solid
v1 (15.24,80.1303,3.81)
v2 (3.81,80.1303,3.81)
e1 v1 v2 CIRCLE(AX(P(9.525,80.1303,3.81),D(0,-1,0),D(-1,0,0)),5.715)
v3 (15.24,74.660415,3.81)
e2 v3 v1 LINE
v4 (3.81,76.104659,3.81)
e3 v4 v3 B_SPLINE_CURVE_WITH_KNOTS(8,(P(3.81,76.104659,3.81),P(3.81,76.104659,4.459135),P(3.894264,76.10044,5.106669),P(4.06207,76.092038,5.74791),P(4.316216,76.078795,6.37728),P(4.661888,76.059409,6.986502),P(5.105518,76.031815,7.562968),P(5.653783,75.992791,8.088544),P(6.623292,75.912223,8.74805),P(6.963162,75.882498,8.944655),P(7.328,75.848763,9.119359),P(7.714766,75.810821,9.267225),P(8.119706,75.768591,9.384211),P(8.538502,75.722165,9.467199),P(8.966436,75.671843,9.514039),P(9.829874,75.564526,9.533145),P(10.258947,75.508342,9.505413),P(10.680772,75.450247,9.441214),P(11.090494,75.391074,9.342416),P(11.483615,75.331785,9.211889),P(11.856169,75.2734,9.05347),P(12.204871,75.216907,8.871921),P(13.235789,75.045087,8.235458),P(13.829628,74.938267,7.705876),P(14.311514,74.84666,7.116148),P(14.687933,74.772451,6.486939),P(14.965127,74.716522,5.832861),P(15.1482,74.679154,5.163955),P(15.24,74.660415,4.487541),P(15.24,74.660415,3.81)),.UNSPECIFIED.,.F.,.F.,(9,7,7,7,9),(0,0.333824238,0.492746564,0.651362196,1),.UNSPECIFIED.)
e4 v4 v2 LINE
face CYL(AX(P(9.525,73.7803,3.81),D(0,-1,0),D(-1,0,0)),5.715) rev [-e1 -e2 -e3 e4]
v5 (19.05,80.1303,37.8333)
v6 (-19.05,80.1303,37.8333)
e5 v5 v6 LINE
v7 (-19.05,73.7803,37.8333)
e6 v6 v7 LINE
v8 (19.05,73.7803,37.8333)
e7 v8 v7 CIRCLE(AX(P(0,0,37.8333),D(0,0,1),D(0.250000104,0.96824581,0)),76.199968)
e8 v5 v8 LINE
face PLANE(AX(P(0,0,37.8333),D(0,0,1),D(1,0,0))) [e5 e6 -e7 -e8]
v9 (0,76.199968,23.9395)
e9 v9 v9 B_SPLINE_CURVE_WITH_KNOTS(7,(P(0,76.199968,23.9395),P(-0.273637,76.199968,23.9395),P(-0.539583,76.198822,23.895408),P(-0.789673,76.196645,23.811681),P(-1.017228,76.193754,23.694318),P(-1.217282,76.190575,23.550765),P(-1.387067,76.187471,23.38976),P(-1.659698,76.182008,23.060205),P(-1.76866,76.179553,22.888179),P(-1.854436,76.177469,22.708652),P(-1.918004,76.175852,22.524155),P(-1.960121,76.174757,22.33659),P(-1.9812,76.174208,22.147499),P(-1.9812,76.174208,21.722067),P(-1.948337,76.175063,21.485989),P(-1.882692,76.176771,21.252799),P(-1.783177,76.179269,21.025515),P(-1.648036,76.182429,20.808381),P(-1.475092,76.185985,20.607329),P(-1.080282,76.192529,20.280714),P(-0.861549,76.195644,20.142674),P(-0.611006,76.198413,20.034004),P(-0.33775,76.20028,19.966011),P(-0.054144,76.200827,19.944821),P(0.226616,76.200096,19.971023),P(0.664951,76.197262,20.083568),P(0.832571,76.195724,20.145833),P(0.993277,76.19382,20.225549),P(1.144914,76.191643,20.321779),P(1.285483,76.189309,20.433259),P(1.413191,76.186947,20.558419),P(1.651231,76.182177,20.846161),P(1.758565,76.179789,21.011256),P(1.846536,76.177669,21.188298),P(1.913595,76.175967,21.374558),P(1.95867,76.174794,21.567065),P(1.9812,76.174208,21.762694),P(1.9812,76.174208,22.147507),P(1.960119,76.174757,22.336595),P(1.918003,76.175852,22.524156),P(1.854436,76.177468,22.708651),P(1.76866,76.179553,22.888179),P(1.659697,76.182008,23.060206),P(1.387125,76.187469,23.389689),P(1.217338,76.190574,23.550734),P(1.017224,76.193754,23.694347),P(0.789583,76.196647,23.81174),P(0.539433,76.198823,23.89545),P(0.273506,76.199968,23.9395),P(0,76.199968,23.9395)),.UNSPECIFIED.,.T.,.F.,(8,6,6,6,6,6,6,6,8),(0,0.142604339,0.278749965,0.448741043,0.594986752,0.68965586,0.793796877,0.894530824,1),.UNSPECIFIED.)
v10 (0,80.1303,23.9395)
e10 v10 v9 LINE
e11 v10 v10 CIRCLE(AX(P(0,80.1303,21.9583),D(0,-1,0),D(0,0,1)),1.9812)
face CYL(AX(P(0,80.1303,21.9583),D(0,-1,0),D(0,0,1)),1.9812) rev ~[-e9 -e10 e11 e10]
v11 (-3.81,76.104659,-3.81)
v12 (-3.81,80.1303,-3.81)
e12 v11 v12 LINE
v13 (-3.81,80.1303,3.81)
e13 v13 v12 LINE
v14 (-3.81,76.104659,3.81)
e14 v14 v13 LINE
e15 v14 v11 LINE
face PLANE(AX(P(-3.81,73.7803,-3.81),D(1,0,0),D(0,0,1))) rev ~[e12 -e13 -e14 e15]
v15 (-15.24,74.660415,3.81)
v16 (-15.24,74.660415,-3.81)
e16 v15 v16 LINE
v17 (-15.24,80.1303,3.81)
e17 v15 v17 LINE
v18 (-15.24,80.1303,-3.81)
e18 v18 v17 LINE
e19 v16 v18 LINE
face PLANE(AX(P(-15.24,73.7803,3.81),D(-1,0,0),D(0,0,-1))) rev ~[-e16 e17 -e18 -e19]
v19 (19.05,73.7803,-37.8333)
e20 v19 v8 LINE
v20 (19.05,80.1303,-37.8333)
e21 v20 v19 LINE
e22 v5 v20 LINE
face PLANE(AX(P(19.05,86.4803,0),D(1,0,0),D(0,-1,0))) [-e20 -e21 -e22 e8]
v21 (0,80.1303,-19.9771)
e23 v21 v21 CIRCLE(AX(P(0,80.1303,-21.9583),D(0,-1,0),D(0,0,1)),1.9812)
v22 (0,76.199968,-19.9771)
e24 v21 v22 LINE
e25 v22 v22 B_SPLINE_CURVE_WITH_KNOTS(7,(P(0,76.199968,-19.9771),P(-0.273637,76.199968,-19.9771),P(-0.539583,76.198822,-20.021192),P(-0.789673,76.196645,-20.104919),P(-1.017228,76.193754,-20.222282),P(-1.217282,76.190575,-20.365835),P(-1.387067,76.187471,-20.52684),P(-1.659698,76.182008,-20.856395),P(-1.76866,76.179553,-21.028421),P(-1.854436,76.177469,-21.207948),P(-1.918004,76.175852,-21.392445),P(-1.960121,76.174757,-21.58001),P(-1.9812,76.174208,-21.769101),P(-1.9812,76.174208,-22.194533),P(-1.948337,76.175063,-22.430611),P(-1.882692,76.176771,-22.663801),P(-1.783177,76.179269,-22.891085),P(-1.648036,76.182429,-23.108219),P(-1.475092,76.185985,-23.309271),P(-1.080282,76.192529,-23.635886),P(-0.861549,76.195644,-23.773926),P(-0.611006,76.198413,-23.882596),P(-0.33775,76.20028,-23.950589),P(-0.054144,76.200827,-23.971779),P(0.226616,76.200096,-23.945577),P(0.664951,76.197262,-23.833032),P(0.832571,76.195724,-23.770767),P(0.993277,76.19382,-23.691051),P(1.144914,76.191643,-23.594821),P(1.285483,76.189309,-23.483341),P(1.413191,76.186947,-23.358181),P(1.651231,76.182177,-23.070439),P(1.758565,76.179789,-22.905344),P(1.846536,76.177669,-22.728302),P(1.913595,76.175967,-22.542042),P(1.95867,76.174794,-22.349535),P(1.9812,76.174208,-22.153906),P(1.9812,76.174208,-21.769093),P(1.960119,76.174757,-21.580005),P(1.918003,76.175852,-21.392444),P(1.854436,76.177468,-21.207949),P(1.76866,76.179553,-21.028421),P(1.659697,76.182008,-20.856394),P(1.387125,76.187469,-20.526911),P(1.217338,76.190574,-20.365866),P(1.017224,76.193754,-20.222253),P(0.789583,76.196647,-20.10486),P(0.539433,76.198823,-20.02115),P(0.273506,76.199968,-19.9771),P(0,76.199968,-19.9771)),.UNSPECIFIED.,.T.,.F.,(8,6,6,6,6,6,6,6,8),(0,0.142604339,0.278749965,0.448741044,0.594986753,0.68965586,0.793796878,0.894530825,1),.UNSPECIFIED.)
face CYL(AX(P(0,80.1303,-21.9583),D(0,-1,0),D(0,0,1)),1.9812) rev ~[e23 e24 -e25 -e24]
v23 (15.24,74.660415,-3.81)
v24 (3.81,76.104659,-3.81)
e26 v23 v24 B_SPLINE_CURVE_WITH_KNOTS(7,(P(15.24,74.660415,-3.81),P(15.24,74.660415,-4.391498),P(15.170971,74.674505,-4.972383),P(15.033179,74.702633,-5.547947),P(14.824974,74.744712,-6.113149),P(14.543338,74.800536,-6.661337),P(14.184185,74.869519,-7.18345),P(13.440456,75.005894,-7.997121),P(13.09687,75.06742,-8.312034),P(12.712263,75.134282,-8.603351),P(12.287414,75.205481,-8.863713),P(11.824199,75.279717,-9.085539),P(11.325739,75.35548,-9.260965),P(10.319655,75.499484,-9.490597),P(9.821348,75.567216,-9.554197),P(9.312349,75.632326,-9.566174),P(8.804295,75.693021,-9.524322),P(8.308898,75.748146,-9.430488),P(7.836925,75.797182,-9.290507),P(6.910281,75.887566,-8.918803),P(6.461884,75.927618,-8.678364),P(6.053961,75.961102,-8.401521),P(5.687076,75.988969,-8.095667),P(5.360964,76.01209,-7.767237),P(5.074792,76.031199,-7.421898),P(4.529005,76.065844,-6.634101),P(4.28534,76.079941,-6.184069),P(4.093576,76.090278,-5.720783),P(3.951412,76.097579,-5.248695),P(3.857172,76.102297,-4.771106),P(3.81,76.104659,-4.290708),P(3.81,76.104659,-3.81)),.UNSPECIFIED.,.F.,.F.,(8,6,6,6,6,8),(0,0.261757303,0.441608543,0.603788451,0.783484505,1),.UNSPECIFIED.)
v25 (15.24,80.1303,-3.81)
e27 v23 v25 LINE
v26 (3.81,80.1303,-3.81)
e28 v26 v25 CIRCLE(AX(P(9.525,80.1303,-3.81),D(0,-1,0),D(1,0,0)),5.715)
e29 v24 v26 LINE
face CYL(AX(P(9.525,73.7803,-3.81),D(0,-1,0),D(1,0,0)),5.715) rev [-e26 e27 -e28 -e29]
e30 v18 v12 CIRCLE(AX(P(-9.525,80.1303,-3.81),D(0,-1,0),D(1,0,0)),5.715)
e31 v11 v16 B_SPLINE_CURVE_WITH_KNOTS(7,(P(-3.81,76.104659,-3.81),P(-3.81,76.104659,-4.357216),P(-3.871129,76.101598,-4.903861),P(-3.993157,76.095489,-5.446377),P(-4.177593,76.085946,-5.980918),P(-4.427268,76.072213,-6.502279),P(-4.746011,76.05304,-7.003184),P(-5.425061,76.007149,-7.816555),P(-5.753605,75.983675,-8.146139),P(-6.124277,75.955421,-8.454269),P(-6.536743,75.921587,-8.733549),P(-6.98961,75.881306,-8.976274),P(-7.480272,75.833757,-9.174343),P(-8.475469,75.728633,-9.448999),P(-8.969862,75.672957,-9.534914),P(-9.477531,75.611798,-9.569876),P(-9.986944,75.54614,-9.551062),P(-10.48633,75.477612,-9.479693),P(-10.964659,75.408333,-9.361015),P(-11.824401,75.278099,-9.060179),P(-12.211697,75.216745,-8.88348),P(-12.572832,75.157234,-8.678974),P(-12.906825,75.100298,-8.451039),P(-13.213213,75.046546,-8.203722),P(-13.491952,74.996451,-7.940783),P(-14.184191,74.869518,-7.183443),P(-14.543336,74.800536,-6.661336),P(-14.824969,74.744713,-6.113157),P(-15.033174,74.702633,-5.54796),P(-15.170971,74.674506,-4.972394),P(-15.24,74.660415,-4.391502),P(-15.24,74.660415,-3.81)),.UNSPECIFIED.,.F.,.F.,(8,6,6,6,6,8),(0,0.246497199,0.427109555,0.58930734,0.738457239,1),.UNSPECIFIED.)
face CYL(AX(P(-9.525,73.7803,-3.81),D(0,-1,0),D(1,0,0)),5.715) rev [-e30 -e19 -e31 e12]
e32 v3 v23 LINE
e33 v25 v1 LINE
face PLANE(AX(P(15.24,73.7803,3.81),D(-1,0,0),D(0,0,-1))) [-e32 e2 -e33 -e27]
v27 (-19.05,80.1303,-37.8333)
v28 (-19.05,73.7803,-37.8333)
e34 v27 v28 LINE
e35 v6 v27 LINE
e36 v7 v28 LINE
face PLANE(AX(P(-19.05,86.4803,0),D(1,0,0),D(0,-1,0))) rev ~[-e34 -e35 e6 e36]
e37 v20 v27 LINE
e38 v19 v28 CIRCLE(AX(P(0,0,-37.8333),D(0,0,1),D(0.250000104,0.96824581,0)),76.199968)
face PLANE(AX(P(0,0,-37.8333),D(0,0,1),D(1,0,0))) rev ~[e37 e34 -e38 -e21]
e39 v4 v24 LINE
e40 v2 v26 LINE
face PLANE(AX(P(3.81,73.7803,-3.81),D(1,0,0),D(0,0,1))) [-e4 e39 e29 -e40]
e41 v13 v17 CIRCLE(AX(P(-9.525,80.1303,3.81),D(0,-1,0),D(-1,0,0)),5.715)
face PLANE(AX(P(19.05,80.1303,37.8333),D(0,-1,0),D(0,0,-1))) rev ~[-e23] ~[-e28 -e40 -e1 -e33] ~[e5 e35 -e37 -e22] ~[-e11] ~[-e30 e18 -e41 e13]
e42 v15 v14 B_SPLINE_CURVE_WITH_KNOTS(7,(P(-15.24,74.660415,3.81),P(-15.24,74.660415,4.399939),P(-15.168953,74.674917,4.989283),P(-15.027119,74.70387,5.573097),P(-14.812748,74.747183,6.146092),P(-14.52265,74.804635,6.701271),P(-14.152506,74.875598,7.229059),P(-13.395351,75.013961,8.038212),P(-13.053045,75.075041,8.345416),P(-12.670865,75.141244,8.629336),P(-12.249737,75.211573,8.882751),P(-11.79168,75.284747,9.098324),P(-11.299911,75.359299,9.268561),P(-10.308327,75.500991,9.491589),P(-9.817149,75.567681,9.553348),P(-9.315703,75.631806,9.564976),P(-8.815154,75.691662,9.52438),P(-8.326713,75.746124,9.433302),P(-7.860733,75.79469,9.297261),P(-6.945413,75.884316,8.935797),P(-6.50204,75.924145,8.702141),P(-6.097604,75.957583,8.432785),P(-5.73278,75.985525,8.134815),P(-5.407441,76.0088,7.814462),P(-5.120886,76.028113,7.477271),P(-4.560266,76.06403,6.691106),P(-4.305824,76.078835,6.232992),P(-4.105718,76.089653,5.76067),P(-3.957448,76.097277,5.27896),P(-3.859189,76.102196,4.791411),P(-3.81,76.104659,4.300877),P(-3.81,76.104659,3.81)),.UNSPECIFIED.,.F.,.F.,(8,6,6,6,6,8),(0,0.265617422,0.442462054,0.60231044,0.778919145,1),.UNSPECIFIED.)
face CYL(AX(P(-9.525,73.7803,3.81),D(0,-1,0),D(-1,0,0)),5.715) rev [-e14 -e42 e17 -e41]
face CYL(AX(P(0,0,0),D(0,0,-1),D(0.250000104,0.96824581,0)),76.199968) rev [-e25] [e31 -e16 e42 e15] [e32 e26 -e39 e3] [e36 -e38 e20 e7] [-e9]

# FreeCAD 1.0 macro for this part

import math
import FreeCAD as App
import Part
import Sketcher
Q = App.Units.Quantity


def add_polygon(sketch, points):
    """Adds a closed chain of lines whose ends are joined by coincident constraints."""
    first, n = sketch.GeometryCount, len(points)
    for a, b in zip(points, points[1:] + points[:1]):
        sketch.addGeometry(Part.LineSegment(App.Vector(*a, 0), App.Vector(*b, 0)), False)
    for i in range(n):
        sketch.addConstraint(Sketcher.Constraint("Coincident", first + i, 2, first + (i + 1) % n, 1))

doc = App.newDocument("Part")
body = doc.addObject("PartDesign::Body", "Body")

# Sketch on XY plane
sketch1 = doc.addObject("Sketcher::SketchObject", "Sketch")
body.addObject(sketch1)
sketch1.AttachmentSupport = (doc.XY_Plane, [""])
sketch1.MapMode = "FlatFace"
sketch1.addGeometry(Part.ArcOfCircle(Part.Circle(App.Vector(0, 0, 0), App.Vector(0, 0, 1), 76), math.radians(76), math.radians(104)), False)
sketch1.addGeometry(Part.LineSegment(App.Vector(19, 74, 0), App.Vector(19, 86, 0)), False)
sketch1.addGeometry(Part.LineSegment(App.Vector(19, 86, 0), App.Vector(-19, 86, 0)), False)
sketch1.addGeometry(Part.LineSegment(App.Vector(-19, 86, 0), App.Vector(-19, 74, 0)), False)
sketch1.addConstraint(Sketcher.Constraint("Coincident", 0, 1, 1, 1))
sketch1.addConstraint(Sketcher.Constraint("Coincident", 1, 2, 2, 1))
sketch1.addConstraint(Sketcher.Constraint("Coincident", 2, 2, 3, 1))
sketch1.addConstraint(Sketcher.Constraint("Coincident", 3, 2, 0, 2))
sketch1.addConstraint(Sketcher.Constraint("Vertical", 1))
sketch1.addConstraint(Sketcher.Constraint("Horizontal", 2))
sketch1.addConstraint(Sketcher.Constraint("Vertical", 3))
sketch1.addConstraint(Sketcher.Constraint("Coincident", 0, 3, -1, 1))
sketch1.addConstraint(Sketcher.Constraint("Horizontal", 0, 1, 3, 2))
sketch1.addConstraint(Sketcher.Constraint("Radius", 0, Q("3 in")))
sketch1.addConstraint(Sketcher.Constraint("DistanceY", 1, 1, 1, 2, Q("0.5 in")))
sketch1.addConstraint(Sketcher.Constraint("DistanceX", -1, 1, 0, 1, Q("0.75 in")))
pad1 = doc.addObject("PartDesign::Pad", "Pad")
body.addObject(pad1)
pad1.Profile = sketch1
pad1.Length = Q("2.979 in")
pad1.Midplane = True

# Sketch on XZ plane
sketch2 = doc.addObject("Sketcher::SketchObject", "Sketch001")
body.addObject(sketch2)
sketch2.AttachmentSupport = (doc.XZ_Plane, [""])
sketch2.MapMode = "FlatFace"
sketch2.AttachmentOffset = App.Placement(App.Vector(0, 0, -86.4803), App.Rotation())
sketch2.addGeometry(Part.LineSegment(App.Vector(7.3, -5.4, 0), App.Vector(7.3, 5.4, 0)), False)
sketch2.addGeometry(Part.ArcOfCircle(Part.Circle(App.Vector(9.5, 5.4, 0), App.Vector(0, 0, 1), 2.2), math.radians(0), math.radians(180)), False)
sketch2.addGeometry(Part.LineSegment(App.Vector(11.7, 5.4, 0), App.Vector(11.7, -5.4, 0)), False)
sketch2.addGeometry(Part.ArcOfCircle(Part.Circle(App.Vector(9.5, -5.4, 0), App.Vector(0, 0, 1), 2.2), math.radians(180), math.radians(360)), False)
sketch2.addGeometry(Part.ArcOfCircle(Part.Circle(App.Vector(-9.5, 5.4, 0), App.Vector(0, 0, 1), 2.2), math.radians(0), math.radians(180)), False)
sketch2.addGeometry(Part.LineSegment(App.Vector(-7.3, 5.4, 0), App.Vector(-7.3, -5.4, 0)), False)
sketch2.addGeometry(Part.ArcOfCircle(Part.Circle(App.Vector(-9.5, -5.4, 0), App.Vector(0, 0, 1), 2.2), math.radians(180), math.radians(360)), False)
sketch2.addGeometry(Part.LineSegment(App.Vector(-11.7, -5.4, 0), App.Vector(-11.7, 5.4, 0)), False)
sketch2.addConstraint(Sketcher.Constraint("Tangent", 0, 2, 1, 2))
sketch2.addConstraint(Sketcher.Constraint("Tangent", 1, 1, 2, 1))
sketch2.addConstraint(Sketcher.Constraint("Tangent", 2, 2, 3, 2))
sketch2.addConstraint(Sketcher.Constraint("Tangent", 3, 1, 0, 1))
sketch2.addConstraint(Sketcher.Constraint("Tangent", 4, 1, 5, 1))
sketch2.addConstraint(Sketcher.Constraint("Tangent", 5, 2, 6, 2))
sketch2.addConstraint(Sketcher.Constraint("Tangent", 6, 1, 7, 1))
sketch2.addConstraint(Sketcher.Constraint("Tangent", 7, 2, 4, 2))
sketch2.addConstraint(Sketcher.Constraint("Vertical", 0))
sketch2.addConstraint(Sketcher.Constraint("Vertical", 2))
sketch2.addConstraint(Sketcher.Constraint("Vertical", 5))
sketch2.addConstraint(Sketcher.Constraint("Vertical", 7))
sketch2.addConstraint(Sketcher.Constraint("Equal", 3, 4))
sketch2.addConstraint(Sketcher.Constraint("Symmetric", 3, 3, 4, 3, -1, 1))
sketch2.addConstraint(Sketcher.Constraint("Horizontal", 1, 3, 4, 3))
sketch2.addConstraint(Sketcher.Constraint("Horizontal", 3, 3, 6, 3))
sketch2.addConstraint(Sketcher.Constraint("Radius", 1, Q("0.0875 in")))
sketch2.addConstraint(Sketcher.Constraint("DistanceX", 4, 3, 1, 3, Q("0.75 in")))
sketch2.addConstraint(Sketcher.Constraint("DistanceY", 0, 1, 0, 2, Q("0.425 in")))
pocket1 = doc.addObject("PartDesign::Pocket", "Pocket")
body.addObject(pocket1)
pocket1.Profile = sketch2
pocket1.Type = "ThroughAll"
pocket1.Reversed = True

# Sketch on XZ plane
sketch3 = doc.addObject("Sketcher::SketchObject", "Sketch002")
body.addObject(sketch3)
sketch3.AttachmentSupport = (doc.XZ_Plane, [""])
sketch3.MapMode = "FlatFace"
sketch3.AttachmentOffset = App.Placement(App.Vector(0, 0, -73.7803), App.Rotation())
sketch3.addGeometry(Part.ArcOfCircle(Part.Circle(App.Vector(10, -4, 0), App.Vector(0, 0, 1), 6), math.radians(180), math.radians(360)), False)
sketch3.addGeometry(Part.LineSegment(App.Vector(4, -4, 0), App.Vector(4, 4, 0)), False)
sketch3.addGeometry(Part.ArcOfCircle(Part.Circle(App.Vector(10, 4, 0), App.Vector(0, 0, 1), 6), math.radians(0), math.radians(180)), False)
sketch3.addGeometry(Part.LineSegment(App.Vector(15, 4, 0), App.Vector(15, -4, 0)), False)
sketch3.addGeometry(Part.LineSegment(App.Vector(-4, 4, 0), App.Vector(-4, -4, 0)), False)
sketch3.addGeometry(Part.ArcOfCircle(Part.Circle(App.Vector(-10, -4, 0), App.Vector(0, 0, 1), 6), math.radians(180), math.radians(360)), False)
sketch3.addGeometry(Part.LineSegment(App.Vector(-15, -4, 0), App.Vector(-15, 4, 0)), False)
sketch3.addGeometry(Part.ArcOfCircle(Part.Circle(App.Vector(-10, 4, 0), App.Vector(0, 0, 1), 6), math.radians(0), math.radians(180)), False)
sketch3.addConstraint(Sketcher.Constraint("Tangent", 0, 1, 1, 1))
sketch3.addConstraint(Sketcher.Constraint("Tangent", 1, 2, 2, 2))
sketch3.addConstraint(Sketcher.Constraint("Tangent", 2, 1, 3, 1))
sketch3.addConstraint(Sketcher.Constraint("Tangent", 3, 2, 0, 2))
sketch3.addConstraint(Sketcher.Constraint("Tangent", 4, 2, 5, 2))
sketch3.addConstraint(Sketcher.Constraint("Tangent", 5, 1, 6, 1))
sketch3.addConstraint(Sketcher.Constraint("Tangent", 6, 2, 7, 2))
sketch3.addConstraint(Sketcher.Constraint("Tangent", 7, 1, 4, 1))
sketch3.addConstraint(Sketcher.Constraint("Vertical", 1))
sketch3.addConstraint(Sketcher.Constraint("Vertical", 3))
sketch3.addConstraint(Sketcher.Constraint("Vertical", 4))
sketch3.addConstraint(Sketcher.Constraint("Vertical", 6))
sketch3.addConstraint(Sketcher.Constraint("Equal", 2, 5))
sketch3.addConstraint(Sketcher.Constraint("Symmetric", 2, 3, 5, 3, -1, 1))
sketch3.addConstraint(Sketcher.Constraint("Horizontal", 0, 3, 5, 3))
sketch3.addConstraint(Sketcher.Constraint("Horizontal", 2, 3, 7, 3))
sketch3.addConstraint(Sketcher.Constraint("Radius", 0, Q("0.225 in")))
sketch3.addConstraint(Sketcher.Constraint("DistanceX", 5, 3, 0, 3, Q("0.75 in")))
sketch3.addConstraint(Sketcher.Constraint("DistanceY", 1, 1, 1, 2, Q("0.3 in")))
pocket2 = doc.addObject("PartDesign::Pocket", "Pocket001")
body.addObject(pocket2)
pocket2.Profile = sketch3
pocket2.Length = Q("0.3 in")

# Sketch on YZ plane
sketch4 = doc.addObject("Sketcher::SketchObject", "Sketch003")
body.addObject(sketch4)
sketch4.AttachmentSupport = (doc.YZ_Plane, [""])
sketch4.MapMode = "FlatFace"
sketch4.AttachmentOffset = App.Placement(App.Vector(0, 0, 0.75 * 25.4), App.Rotation())
add_polygon(sketch4, [(86, -38), (86, 38), (80, 38), (80, -38)])  # lines 0-3
sketch4.addConstraint(Sketcher.Constraint("Vertical", 0))
sketch4.addConstraint(Sketcher.Constraint("Horizontal", 1))
sketch4.addConstraint(Sketcher.Constraint("Vertical", 2))
sketch4.addConstraint(Sketcher.Constraint("Horizontal", 3))
sketch4.addConstraint(Sketcher.Constraint("DistanceX", 1, 2, 1, 1, Q("0.25 in")))
sketch4.addConstraint(Sketcher.Constraint("DistanceY", 0, 1, 0, 2, Q("2.979 in")))
sketch4.addConstraint(Sketcher.Constraint("DistanceY", -1, 1, 0, 2, Q("1.4895 in")))
sketch4.addConstraint(Sketcher.Constraint("DistanceX", -1, 1, 0, 2, Q("86.4803 mm")))
pocket3 = doc.addObject("PartDesign::Pocket", "Pocket002")
body.addObject(pocket3)
pocket3.Profile = sketch4
pocket3.Type = "ThroughAll"

# Sketch on XZ plane
sketch5 = doc.addObject("Sketcher::SketchObject", "Sketch004")
body.addObject(sketch5)
sketch5.AttachmentSupport = (doc.XZ_Plane, [""])
sketch5.MapMode = "FlatFace"
sketch5.AttachmentOffset = App.Placement(App.Vector(0, 0, -80.1303), App.Rotation())
sketch5.addGeometry(Part.Circle(App.Vector(0, -22, 0), App.Vector(0, 0, 1), 2), False)
sketch5.addGeometry(Part.Circle(App.Vector(0, 22, 0), App.Vector(0, 0, 1), 2), False)
sketch5.addConstraint(Sketcher.Constraint("Equal", 0, 1))
sketch5.addConstraint(Sketcher.Constraint("Symmetric", 0, 3, 1, 3, -1, 1))
sketch5.addConstraint(Sketcher.Constraint("PointOnObject", 0, 3, -2))
sketch5.addConstraint(Sketcher.Constraint("Diameter", 0, Q("0.156 in")))
sketch5.addConstraint(Sketcher.Constraint("DistanceY", 0, 3, 1, 3, Q("1.729 in")))
doc.recompute()
hole = doc.addObject("PartDesign::Hole", "Hole")
body.addObject(hole)
hole.Profile = sketch5
hole.ThreadType = "None"
hole.Diameter = Q("0.156 in")
hole.DepthType = "ThroughAll"
hole.Reversed = True

doc.recompute()
